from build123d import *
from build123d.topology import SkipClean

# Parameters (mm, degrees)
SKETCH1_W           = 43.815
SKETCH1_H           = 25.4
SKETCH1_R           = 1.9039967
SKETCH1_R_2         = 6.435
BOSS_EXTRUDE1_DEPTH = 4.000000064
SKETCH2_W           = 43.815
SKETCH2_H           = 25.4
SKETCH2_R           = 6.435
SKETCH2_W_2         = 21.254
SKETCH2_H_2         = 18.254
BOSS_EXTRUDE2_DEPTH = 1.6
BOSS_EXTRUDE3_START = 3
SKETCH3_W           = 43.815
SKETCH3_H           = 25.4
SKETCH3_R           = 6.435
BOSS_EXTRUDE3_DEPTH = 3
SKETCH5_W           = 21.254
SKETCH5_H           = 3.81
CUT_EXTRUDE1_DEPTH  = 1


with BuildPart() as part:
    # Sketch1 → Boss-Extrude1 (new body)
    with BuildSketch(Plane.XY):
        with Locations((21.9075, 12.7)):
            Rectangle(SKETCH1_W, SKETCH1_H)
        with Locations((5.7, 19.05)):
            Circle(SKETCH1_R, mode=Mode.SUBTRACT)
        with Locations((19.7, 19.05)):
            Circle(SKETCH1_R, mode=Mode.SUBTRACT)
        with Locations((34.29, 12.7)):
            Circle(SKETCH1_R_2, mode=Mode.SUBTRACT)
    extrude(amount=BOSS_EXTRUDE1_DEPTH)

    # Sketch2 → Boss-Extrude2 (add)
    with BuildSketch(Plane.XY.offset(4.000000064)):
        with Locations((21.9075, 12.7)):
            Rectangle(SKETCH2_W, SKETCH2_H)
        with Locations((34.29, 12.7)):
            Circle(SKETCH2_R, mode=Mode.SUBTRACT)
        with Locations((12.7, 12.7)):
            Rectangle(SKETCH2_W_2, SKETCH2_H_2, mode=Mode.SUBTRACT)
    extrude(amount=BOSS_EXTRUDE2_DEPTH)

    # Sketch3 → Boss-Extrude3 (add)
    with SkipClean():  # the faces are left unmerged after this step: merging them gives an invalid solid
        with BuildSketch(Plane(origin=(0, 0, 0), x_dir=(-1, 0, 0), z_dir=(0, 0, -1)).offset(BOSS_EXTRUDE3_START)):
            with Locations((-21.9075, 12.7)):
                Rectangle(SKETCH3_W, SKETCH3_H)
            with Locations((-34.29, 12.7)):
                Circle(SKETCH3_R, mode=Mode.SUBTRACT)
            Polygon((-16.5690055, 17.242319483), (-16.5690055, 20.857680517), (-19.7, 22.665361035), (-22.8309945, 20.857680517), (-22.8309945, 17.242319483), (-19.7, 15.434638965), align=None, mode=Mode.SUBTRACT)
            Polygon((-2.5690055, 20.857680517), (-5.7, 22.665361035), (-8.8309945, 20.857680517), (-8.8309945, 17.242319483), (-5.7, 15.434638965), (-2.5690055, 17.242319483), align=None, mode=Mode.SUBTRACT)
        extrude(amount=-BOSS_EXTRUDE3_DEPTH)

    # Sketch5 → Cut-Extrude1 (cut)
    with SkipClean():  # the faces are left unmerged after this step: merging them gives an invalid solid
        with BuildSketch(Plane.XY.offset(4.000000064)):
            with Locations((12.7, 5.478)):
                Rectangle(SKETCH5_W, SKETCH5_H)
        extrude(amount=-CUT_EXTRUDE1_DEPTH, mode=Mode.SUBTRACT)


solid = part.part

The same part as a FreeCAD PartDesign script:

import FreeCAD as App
import Part
import Sketcher

V = App.Vector
Q = App.Units.Quantity


def add_polygon(sketch, points):
    """Adds a closed chain of lines whose ends are joined by coincident constraints."""
    first, n = sketch.GeometryCount, len(points)
    for a, b in zip(points, points[1:] + points[:1]):
        sketch.addGeometry(Part.LineSegment(App.Vector(*a, 0), App.Vector(*b, 0)), False)
    for i in range(n):
        sketch.addConstraint(Sketcher.Constraint("Coincident", first + i, 2, first + (i + 1) % n, 1))

doc = App.newDocument("Part")
body = doc.addObject("PartDesign::Body", "Body")

# Sketch on XY plane
sketch1 = doc.addObject("Sketcher::SketchObject", "Sketch")
body.addObject(sketch1)
sketch1.AttachmentSupport = (doc.XY_Plane, [""])
sketch1.MapMode = "FlatFace"
add_polygon(sketch1, [(0, 25.4), (0, 0), (43.8, 0), (43.8, 25.4)])  # lines 0-3
sketch1.addGeometry(Part.Circle(V(34.3, 12.7, 0), V(0, 0, 1), 6.4), False)  # 4
sketch1.addGeometry(Part.Circle(V(5.7, 19.1, 0), V(0, 0, 1), 1.9), False)  # 5
sketch1.addGeometry(Part.Circle(V(19.7, 19.1, 0), V(0, 0, 1), 1.9), False)  # 6
sketch1.addConstraint([
    Sketcher.Constraint("Vertical", 0),
    Sketcher.Constraint("Horizontal", 1),
    Sketcher.Constraint("Vertical", 2),
    Sketcher.Constraint("Horizontal", 3),
    Sketcher.Constraint("Coincident", 0, 2, -1, 1),
    Sketcher.Constraint("Equal", 5, 6),
    Sketcher.Constraint("Horizontal", 5, 3, 6, 3),
    Sketcher.Constraint("Diameter", 4, 12.87),
    Sketcher.Constraint("DistanceY", 0, 2, 0, 1, 25.4),
    Sketcher.Constraint("DistanceX", 5, 3, 6, 3, 14.0),
    Sketcher.Constraint("DistanceY", -1, 1, 4, 3, 12.7),
    Sketcher.Constraint("DistanceX", -1, 1, 5, 3, 5.7),
    Sketcher.Constraint("DistanceX", 1, 1, 1, 2, 43.815),
    Sketcher.Constraint("DistanceX", -1, 1, 4, 3, 34.29),
    Sketcher.Constraint("DistanceY", -1, 1, 5, 3, 19.05),
    Sketcher.Constraint("Diameter", 5, 3.807993),
])
pad1 = doc.addObject("PartDesign::Pad", "Pad")
body.addObject(pad1)
pad1.Profile = sketch1
pad1.Length = 4

# Sketch on XY plane
sketch2 = doc.addObject("Sketcher::SketchObject", "Sketch001")
body.addObject(sketch2)
sketch2.AttachmentSupport = (doc.XY_Plane, [""])
sketch2.MapMode = "FlatFace"
sketch2.AttachmentOffset = App.Placement(V(0, 0, 4), App.Rotation())
add_polygon(sketch2, [(0, 25), (0, 0), (44, 0), (44, 25)])  # lines 0-3
add_polygon(sketch2, [(23, 4), (2, 4), (2, 22), (23, 22)])  # lines 4-7
sketch2.addGeometry(Part.Circle(V(34, 13, 0), V(0, 0, 1), 6), False)  # 8
sketch2.addConstraint([
    Sketcher.Constraint("Vertical", 0),
    Sketcher.Constraint("Horizontal", 1),
    Sketcher.Constraint("Vertical", 2),
    Sketcher.Constraint("Horizontal", 3),
    Sketcher.Constraint("Horizontal", 4),
    Sketcher.Constraint("Vertical", 5),
    Sketcher.Constraint("Horizontal", 6),
    Sketcher.Constraint("Vertical", 7),
    Sketcher.Constraint("Coincident", 0, 2, -1, 1),
    Sketcher.Constraint("Diameter", 8, 12.87),
    Sketcher.Constraint("DistanceY", 0, 2, 0, 1, 25.4),
    Sketcher.Constraint("DistanceY", -1, 1, 8, 3, 12.7),
    Sketcher.Constraint("DistanceX", 1, 1, 1, 2, 43.815),
    Sketcher.Constraint("DistanceX", 4, 2, 4, 1, 21.254),
    Sketcher.Constraint("DistanceY", 5, 1, 5, 2, 18.254),
    Sketcher.Constraint("DistanceX", -1, 1, 8, 3, 34.29),
    Sketcher.Constraint("DistanceX", -1, 1, 4, 2, 2.073),
    Sketcher.Constraint("DistanceY", -1, 1, 4, 2, 3.573),
])
pad2 = doc.addObject("PartDesign::Pad", "Pad001")
body.addObject(pad2)
pad2.Profile = sketch2
pad2.Length = 1.6

# Sketch on XY plane
sketch3 = doc.addObject("Sketcher::SketchObject", "Sketch002")
body.addObject(sketch3)
sketch3.AttachmentSupport = (doc.XY_Plane, [""])
sketch3.MapMode = "FlatFace"
sketch3.AttachmentOffset = App.Placement(V(0, 0, -3), App.Rotation())
add_polygon(sketch3, [(43.8, 25.4), (43.8, 0), (0, 0), (0, 25.4)])  # lines 0-3
sketch3.addGeometry(Part.Circle(V(34.3, 12.7, 0), V(0, 0, 1), 6.4), False)  # 4
add_polygon(sketch3, [(16.6, 20.9), (16.6, 17.2), (19.7, 15.4), (22.8, 17.2), (22.8, 20.9), (19.7, 22.7)])  # lines 5-10
add_polygon(sketch3, [(5.7, 22.7), (2.6, 20.9), (2.6, 17.2), (5.7, 15.4), (8.8, 17.2), (8.8, 20.9)])  # lines 11-16
sketch3.addConstraint([
    Sketcher.Constraint("Vertical", 0),
    Sketcher.Constraint("Horizontal", 1),
    Sketcher.Constraint("Vertical", 2),
    Sketcher.Constraint("Horizontal", 3),
    Sketcher.Constraint("Vertical", 5),
    Sketcher.Constraint("Vertical", 8),
    Sketcher.Constraint("Vertical", 12),
    Sketcher.Constraint("Vertical", 15),
    Sketcher.Constraint("Coincident", 1, 2, -1, 1),
    Sketcher.Constraint("Parallel", 6, 9),
    Sketcher.Constraint("Parallel", 7, 10),
    Sketcher.Constraint("Parallel", 10, 11),
    Sketcher.Constraint("Parallel", 9, 13),
    Sketcher.Constraint("Parallel", 11, 14),
    Sketcher.Constraint("Parallel", 13, 16),
    Sketcher.Constraint("Horizontal", 5, 2, 7, 2),
    Sketcher.Constraint("Horizontal", 8, 2, 10, 2),
    Sketcher.Constraint("Horizontal", 10, 2, 11, 2),
    Sketcher.Constraint("Horizontal", 7, 2, 12, 2),
    Sketcher.Constraint("Horizontal", 6, 2, 13, 2),
    Sketcher.Constraint("Horizontal", 12, 2, 14, 2),
    Sketcher.Constraint("Horizontal", 11, 2, 15, 2),
    Sketcher.Constraint("Vertical", 6, 2, 9, 2),
    Sketcher.Constraint("Diameter", 4, 12.87),
    Sketcher.Constraint("Angle", 6, Q("-30 deg")),
    Sketcher.Constraint("DistanceY", 0, 2, 0, 1, 25.4),
    Sketcher.Constraint("DistanceX", 11, 2, 10, 2, 14.0),
    Sketcher.Constraint("DistanceY", -1, 1, 4, 3, 12.7),
    Sketcher.Constraint("DistanceX", -1, 1, 6, 2, 19.7),
    Sketcher.Constraint("DistanceX", 1, 2, 1, 1, 43.815),
    Sketcher.Constraint("DistanceX", -1, 1, 4, 3, 34.29),
    Sketcher.Constraint("DistanceY", 5, 2, 5, 1, 3.615361),
    Sketcher.Constraint("Distance", 6, 3.615361),
    Sketcher.Constraint("DistanceY", -1, 1, 5, 2, 17.242319),
])
pad3 = doc.addObject("PartDesign::Pad", "Pad002")
body.addObject(pad3)
pad3.Profile = sketch3
pad3.Length = 3

# Sketch on XY plane
sketch4 = doc.addObject("Sketcher::SketchObject", "Sketch003")
body.addObject(sketch4)
sketch4.AttachmentSupport = (doc.XY_Plane, [""])
sketch4.MapMode = "FlatFace"
sketch4.AttachmentOffset = App.Placement(V(0, 0, 4), App.Rotation())
add_polygon(sketch4, [(2.1, 7.4), (2.1, 3.6), (23.3, 3.6), (23.3, 7.4)])  # lines 0-3
sketch4.addConstraint([
    Sketcher.Constraint("Vertical", 0),
    Sketcher.Constraint("Horizontal", 1),
    Sketcher.Constraint("Vertical", 2),
    Sketcher.Constraint("Horizontal", 3),
    Sketcher.Constraint("DistanceY", 0, 2, 0, 1, 3.81),
    Sketcher.Constraint("DistanceX", 1, 1, 1, 2, 21.254),
    Sketcher.Constraint("DistanceX", -1, 1, 0, 2, 2.073),
    Sketcher.Constraint("DistanceY", -1, 1, 0, 2, 3.573),
])
pocket1 = doc.addObject("PartDesign::Pocket", "Pocket")
body.addObject(pocket1)
pocket1.Profile = sketch4
pocket1.Length = 1

doc.recompute()
